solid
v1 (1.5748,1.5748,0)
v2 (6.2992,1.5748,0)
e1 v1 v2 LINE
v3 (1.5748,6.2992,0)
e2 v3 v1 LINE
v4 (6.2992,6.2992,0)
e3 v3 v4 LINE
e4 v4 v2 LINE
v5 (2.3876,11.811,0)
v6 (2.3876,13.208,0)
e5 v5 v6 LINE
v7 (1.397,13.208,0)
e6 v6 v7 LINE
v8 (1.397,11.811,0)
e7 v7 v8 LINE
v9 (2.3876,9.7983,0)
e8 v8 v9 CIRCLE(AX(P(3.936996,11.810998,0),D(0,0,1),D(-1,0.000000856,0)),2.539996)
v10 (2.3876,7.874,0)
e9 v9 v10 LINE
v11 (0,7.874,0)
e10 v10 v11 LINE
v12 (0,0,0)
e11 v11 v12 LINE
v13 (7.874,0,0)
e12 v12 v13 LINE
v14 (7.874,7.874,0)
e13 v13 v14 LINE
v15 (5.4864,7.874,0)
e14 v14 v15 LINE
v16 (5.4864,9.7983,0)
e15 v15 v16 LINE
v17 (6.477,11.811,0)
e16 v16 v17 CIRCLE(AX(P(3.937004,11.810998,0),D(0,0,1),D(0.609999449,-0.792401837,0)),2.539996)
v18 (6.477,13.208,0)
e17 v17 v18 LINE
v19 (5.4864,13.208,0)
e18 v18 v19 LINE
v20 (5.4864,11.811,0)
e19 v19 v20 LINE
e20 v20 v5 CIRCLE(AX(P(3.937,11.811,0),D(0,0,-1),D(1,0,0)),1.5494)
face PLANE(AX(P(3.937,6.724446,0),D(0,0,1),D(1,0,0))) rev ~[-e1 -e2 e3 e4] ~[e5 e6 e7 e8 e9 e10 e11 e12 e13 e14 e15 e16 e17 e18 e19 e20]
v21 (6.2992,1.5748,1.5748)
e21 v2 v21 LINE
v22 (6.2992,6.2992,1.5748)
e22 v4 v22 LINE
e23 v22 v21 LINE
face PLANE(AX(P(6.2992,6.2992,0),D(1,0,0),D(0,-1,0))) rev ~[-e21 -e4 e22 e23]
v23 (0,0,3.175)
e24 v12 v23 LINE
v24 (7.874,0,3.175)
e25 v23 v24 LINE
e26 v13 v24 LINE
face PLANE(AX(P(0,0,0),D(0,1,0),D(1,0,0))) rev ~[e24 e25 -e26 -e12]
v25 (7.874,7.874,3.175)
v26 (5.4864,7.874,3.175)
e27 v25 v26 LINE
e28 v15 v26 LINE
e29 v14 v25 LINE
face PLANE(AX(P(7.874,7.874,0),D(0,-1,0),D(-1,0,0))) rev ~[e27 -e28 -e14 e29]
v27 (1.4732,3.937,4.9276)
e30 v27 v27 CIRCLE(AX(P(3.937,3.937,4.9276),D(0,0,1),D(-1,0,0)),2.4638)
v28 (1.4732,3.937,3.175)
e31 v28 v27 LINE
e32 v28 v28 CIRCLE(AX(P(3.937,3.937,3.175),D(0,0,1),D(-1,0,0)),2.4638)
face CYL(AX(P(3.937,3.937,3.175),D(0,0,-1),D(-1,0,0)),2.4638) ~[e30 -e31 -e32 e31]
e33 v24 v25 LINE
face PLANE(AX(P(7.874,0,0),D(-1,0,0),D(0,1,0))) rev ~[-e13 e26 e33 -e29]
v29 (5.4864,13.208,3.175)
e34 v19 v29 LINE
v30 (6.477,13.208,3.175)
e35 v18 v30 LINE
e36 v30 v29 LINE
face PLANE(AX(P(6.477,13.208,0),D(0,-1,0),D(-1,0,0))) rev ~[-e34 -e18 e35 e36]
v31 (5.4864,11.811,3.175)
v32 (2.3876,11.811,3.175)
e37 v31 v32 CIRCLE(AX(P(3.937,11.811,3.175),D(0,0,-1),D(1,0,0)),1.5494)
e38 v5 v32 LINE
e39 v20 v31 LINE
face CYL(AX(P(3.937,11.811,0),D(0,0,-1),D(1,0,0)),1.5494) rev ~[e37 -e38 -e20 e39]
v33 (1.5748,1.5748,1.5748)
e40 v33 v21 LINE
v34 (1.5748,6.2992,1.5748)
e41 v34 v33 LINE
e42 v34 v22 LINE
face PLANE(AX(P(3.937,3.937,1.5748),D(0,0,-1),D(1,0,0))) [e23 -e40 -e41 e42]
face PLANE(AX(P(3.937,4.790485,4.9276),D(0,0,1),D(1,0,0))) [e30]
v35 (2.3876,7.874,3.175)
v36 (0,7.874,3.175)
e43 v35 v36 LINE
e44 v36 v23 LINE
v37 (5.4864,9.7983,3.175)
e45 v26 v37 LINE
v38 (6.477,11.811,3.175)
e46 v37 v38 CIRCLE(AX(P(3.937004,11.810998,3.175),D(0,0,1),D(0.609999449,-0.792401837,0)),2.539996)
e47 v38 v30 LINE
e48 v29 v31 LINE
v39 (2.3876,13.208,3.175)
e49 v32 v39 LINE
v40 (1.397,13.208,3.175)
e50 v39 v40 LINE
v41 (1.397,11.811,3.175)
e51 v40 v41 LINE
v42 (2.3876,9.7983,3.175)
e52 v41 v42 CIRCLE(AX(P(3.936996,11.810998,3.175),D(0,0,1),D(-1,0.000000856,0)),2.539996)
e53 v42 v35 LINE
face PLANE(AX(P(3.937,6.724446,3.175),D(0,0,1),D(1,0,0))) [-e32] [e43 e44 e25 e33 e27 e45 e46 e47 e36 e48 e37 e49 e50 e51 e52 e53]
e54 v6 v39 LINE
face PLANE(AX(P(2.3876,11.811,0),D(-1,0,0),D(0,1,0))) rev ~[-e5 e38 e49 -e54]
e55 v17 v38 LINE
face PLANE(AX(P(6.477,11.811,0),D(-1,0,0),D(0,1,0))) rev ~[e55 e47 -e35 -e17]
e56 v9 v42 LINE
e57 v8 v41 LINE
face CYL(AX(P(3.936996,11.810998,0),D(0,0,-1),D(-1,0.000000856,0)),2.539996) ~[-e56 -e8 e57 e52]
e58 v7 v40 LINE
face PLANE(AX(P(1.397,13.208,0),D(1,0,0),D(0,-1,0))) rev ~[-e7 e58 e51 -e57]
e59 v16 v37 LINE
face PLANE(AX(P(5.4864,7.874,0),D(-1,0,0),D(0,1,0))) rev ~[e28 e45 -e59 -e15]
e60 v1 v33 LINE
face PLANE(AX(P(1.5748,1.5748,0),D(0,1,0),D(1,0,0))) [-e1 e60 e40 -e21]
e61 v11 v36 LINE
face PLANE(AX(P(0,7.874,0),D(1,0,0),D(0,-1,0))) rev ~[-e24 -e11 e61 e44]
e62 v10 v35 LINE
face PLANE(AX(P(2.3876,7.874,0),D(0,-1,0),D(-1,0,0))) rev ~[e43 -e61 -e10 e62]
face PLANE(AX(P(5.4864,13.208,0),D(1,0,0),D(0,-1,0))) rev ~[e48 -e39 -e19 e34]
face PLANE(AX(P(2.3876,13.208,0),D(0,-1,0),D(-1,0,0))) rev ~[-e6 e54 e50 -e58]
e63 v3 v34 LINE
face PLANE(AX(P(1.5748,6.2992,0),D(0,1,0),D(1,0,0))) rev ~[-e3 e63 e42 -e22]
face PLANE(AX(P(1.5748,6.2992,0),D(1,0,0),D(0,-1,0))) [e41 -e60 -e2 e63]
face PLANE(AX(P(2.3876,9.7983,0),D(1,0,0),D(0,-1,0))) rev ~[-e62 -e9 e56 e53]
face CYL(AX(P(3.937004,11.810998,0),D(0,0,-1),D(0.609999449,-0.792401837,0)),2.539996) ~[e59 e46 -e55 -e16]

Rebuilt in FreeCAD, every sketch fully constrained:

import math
import FreeCAD as App
import Part
import Sketcher

V = App.Vector
Q = App.Units.Quantity

doc = App.newDocument("Part")
body = doc.addObject("PartDesign::Body", "Body")

sketch1 = body.newObject("Sketcher::SketchObject", "Sketch")
sketch1.AttachmentSupport = (doc.getObject("XY_Plane"), [""])
sketch1.MapMode = "FlatFace"
sketch1.addGeometry([
    Part.LineSegment(V(0, 7.874, 0), V(0, 0, 0)),
    Part.LineSegment(V(0, 0, 0), V(7.874, 0, 0)),
    Part.LineSegment(V(7.874, 0, 0), V(7.874, 7.874, 0)),
    Part.LineSegment(V(7.874, 7.874, 0), V(5.4864, 7.874, 0)),
    Part.LineSegment(V(5.4864, 7.874, 0), V(5.4864, 9.7983, 0)),
    Part.ArcOfCircle(Part.Circle(V(3.937004, 11.810998, 0), V(0, 0, 1), 2.539996), math.radians(-52.410537), math.radians(0.000049)),
    Part.LineSegment(V(6.477, 11.811, 0), V(6.477, 13.208, 0)),
    Part.LineSegment(V(6.477, 13.208, 0), V(5.4864, 13.208, 0)),
    Part.LineSegment(V(5.4864, 13.208, 0), V(5.4864, 11.811, 0)),
    Part.ArcOfCircle(Part.Circle(V(3.937, 11.811, 0), V(0, 0, 1), 1.5494), math.radians(180), math.radians(360)),
    Part.LineSegment(V(2.3876, 11.811, 0), V(2.3876, 13.208, 0)),
    Part.LineSegment(V(2.3876, 13.208, 0), V(1.397, 13.208, 0)),
    Part.LineSegment(V(1.397, 13.208, 0), V(1.397, 11.811, 0)),
    Part.ArcOfCircle(Part.Circle(V(3.936996, 11.810998, 0), V(0, 0, 1), 2.539996), math.radians(179.999951), math.radians(232.410537)),
    Part.LineSegment(V(2.3876, 9.7983, 0), V(2.3876, 7.874, 0)),
    Part.LineSegment(V(2.3876, 7.874, 0), V(0, 7.874, 0)),
], False)
sketch1.addConstraint([
    Sketcher.Constraint("Coincident", 0, 2, 1, 1),
    Sketcher.Constraint("Coincident", 1, 2, 2, 1),
    Sketcher.Constraint("Coincident", 2, 2, 3, 1),
    Sketcher.Constraint("Coincident", 3, 2, 4, 1),
    Sketcher.Constraint("Coincident", 4, 2, 5, 1),
    Sketcher.Constraint("Tangent", 5, 2, 6, 1),
    Sketcher.Constraint("Coincident", 6, 2, 7, 1),
    Sketcher.Constraint("Coincident", 7, 2, 8, 1),
    Sketcher.Constraint("Tangent", 8, 2, 9, 2),
    Sketcher.Constraint("Tangent", 9, 1, 10, 1),
    Sketcher.Constraint("Coincident", 10, 2, 11, 1),
    Sketcher.Constraint("Coincident", 11, 2, 12, 1),
    Sketcher.Constraint("Tangent", 12, 2, 13, 1),
    Sketcher.Constraint("Coincident", 13, 2, 14, 1),
    Sketcher.Constraint("Coincident", 14, 2, 15, 1),
    Sketcher.Constraint("Coincident", 15, 2, 0, 1),
    Sketcher.Constraint("Vertical", 0),
    Sketcher.Constraint("Horizontal", 1),
    Sketcher.Constraint("Vertical", 2),
    Sketcher.Constraint("Horizontal", 3),
    Sketcher.Constraint("Vertical", 4),
    Sketcher.Constraint("Vertical", 6),
    Sketcher.Constraint("Horizontal", 7),
    Sketcher.Constraint("Vertical", 8),
    Sketcher.Constraint("Vertical", 10),
    Sketcher.Constraint("Horizontal", 11),
    Sketcher.Constraint("Vertical", 12),
    Sketcher.Constraint("Vertical", 14),
    Sketcher.Constraint("Horizontal", 15),
    Sketcher.Constraint("Coincident", 0, 2, -1, 1),
    Sketcher.Constraint("Coincident", 9, 3, 5, 3),
    Sketcher.Constraint("Coincident", 13, 3, 5, 3),
    Sketcher.Constraint("Equal", 5, 13),
    Sketcher.Constraint("Horizontal", 7, 2, 10, 2),
    Sketcher.Constraint("Horizontal", 4, 2, 13, 2),
    Sketcher.Constraint("Horizontal", 3, 2, 14, 2),
    Sketcher.Constraint("Vertical", 4, 2, 7, 2),
    Sketcher.Constraint("Equal", 3, 15),
    Sketcher.Constraint("Equal", 1, 0),
    Sketcher.Constraint("Radius", 5, Q("0.0999999 in")),
    Sketcher.Constraint("Radius", 9, Q("0.061 in")),
    Sketcher.Constraint("DistanceX", 1, 1, 1, 2, Q("0.31 in")),
    Sketcher.Constraint("DistanceY", 6, 1, 6, 2, Q("0.055 in")),
    Sketcher.Constraint("DistanceY", -1, 1, 6, 2, Q("0.52 in")),
])
pad1 = body.newObject("PartDesign::Pad", "Pad")
pad1.Profile = sketch1
pad1.Length = Q("0.125 in")

sketch2 = body.newObject("Sketcher::SketchObject", "Sketch001")
sketch2.AttachmentSupport = (doc.getObject("XY_Plane"), [""])
sketch2.MapMode = "FlatFace"
sketch2.AttachmentOffset = App.Placement(V(0, 0, 0.125 * 25.4), App.Rotation())
sketch2.addGeometry(Part.Circle(V(3.937, 3.937, 0), V(0, 0, 1), 2.4638), False)
sketch2.addConstraint([
    Sketcher.Constraint("Diameter", 0, Q("0.194 in")),
    Sketcher.Constraint("DistanceX", -1, 1, 0, 3, Q("0.155 in")),
    Sketcher.Constraint("DistanceY", -1, 1, 0, 3, Q("0.155 in")),
])
pad2 = body.newObject("PartDesign::Pad", "Pad001")
pad2.Profile = sketch2
pad2.Length = Q("0.069 in")

sketch3 = body.newObject("Sketcher::SketchObject", "Sketch002")
sketch3.AttachmentSupport = (doc.getObject("XY_Plane"), [""])
sketch3.MapMode = "FlatFace"
sketch3.addGeometry([
    Part.LineSegment(V(1.5748, 1.5748, 0), V(1.5748, 6.2992, 0)),
    Part.LineSegment(V(1.5748, 6.2992, 0), V(6.2992, 6.2992, 0)),
    Part.LineSegment(V(6.2992, 6.2992, 0), V(6.2992, 1.5748, 0)),
    Part.LineSegment(V(6.2992, 1.5748, 0), V(1.5748, 1.5748, 0)),
], False)
sketch3.addConstraint([
    Sketcher.Constraint("Coincident", 0, 2, 1, 1),
    Sketcher.Constraint("Coincident", 1, 2, 2, 1),
    Sketcher.Constraint("Coincident", 2, 2, 3, 1),
    Sketcher.Constraint("Coincident", 3, 2, 0, 1),
    Sketcher.Constraint("Vertical", 0),
    Sketcher.Constraint("Horizontal", 1),
    Sketcher.Constraint("Vertical", 2),
    Sketcher.Constraint("Horizontal", 3),
    Sketcher.Constraint("Equal", 3, 0),
    Sketcher.Constraint("DistanceX", 1, 1, 1, 2, Q("0.186 in")),
    Sketcher.Constraint("DistanceX", -1, 1, 0, 2, Q("0.062 in")),
    Sketcher.Constraint("DistanceY", -1, 1, 0, 2, Q("0.248 in")),
])
pocket1 = body.newObject("PartDesign::Pocket", "Pocket")
pocket1.Profile = sketch3
pocket1.Length = Q("0.062 in")
pocket1.Reversed = True

doc.recompute()
